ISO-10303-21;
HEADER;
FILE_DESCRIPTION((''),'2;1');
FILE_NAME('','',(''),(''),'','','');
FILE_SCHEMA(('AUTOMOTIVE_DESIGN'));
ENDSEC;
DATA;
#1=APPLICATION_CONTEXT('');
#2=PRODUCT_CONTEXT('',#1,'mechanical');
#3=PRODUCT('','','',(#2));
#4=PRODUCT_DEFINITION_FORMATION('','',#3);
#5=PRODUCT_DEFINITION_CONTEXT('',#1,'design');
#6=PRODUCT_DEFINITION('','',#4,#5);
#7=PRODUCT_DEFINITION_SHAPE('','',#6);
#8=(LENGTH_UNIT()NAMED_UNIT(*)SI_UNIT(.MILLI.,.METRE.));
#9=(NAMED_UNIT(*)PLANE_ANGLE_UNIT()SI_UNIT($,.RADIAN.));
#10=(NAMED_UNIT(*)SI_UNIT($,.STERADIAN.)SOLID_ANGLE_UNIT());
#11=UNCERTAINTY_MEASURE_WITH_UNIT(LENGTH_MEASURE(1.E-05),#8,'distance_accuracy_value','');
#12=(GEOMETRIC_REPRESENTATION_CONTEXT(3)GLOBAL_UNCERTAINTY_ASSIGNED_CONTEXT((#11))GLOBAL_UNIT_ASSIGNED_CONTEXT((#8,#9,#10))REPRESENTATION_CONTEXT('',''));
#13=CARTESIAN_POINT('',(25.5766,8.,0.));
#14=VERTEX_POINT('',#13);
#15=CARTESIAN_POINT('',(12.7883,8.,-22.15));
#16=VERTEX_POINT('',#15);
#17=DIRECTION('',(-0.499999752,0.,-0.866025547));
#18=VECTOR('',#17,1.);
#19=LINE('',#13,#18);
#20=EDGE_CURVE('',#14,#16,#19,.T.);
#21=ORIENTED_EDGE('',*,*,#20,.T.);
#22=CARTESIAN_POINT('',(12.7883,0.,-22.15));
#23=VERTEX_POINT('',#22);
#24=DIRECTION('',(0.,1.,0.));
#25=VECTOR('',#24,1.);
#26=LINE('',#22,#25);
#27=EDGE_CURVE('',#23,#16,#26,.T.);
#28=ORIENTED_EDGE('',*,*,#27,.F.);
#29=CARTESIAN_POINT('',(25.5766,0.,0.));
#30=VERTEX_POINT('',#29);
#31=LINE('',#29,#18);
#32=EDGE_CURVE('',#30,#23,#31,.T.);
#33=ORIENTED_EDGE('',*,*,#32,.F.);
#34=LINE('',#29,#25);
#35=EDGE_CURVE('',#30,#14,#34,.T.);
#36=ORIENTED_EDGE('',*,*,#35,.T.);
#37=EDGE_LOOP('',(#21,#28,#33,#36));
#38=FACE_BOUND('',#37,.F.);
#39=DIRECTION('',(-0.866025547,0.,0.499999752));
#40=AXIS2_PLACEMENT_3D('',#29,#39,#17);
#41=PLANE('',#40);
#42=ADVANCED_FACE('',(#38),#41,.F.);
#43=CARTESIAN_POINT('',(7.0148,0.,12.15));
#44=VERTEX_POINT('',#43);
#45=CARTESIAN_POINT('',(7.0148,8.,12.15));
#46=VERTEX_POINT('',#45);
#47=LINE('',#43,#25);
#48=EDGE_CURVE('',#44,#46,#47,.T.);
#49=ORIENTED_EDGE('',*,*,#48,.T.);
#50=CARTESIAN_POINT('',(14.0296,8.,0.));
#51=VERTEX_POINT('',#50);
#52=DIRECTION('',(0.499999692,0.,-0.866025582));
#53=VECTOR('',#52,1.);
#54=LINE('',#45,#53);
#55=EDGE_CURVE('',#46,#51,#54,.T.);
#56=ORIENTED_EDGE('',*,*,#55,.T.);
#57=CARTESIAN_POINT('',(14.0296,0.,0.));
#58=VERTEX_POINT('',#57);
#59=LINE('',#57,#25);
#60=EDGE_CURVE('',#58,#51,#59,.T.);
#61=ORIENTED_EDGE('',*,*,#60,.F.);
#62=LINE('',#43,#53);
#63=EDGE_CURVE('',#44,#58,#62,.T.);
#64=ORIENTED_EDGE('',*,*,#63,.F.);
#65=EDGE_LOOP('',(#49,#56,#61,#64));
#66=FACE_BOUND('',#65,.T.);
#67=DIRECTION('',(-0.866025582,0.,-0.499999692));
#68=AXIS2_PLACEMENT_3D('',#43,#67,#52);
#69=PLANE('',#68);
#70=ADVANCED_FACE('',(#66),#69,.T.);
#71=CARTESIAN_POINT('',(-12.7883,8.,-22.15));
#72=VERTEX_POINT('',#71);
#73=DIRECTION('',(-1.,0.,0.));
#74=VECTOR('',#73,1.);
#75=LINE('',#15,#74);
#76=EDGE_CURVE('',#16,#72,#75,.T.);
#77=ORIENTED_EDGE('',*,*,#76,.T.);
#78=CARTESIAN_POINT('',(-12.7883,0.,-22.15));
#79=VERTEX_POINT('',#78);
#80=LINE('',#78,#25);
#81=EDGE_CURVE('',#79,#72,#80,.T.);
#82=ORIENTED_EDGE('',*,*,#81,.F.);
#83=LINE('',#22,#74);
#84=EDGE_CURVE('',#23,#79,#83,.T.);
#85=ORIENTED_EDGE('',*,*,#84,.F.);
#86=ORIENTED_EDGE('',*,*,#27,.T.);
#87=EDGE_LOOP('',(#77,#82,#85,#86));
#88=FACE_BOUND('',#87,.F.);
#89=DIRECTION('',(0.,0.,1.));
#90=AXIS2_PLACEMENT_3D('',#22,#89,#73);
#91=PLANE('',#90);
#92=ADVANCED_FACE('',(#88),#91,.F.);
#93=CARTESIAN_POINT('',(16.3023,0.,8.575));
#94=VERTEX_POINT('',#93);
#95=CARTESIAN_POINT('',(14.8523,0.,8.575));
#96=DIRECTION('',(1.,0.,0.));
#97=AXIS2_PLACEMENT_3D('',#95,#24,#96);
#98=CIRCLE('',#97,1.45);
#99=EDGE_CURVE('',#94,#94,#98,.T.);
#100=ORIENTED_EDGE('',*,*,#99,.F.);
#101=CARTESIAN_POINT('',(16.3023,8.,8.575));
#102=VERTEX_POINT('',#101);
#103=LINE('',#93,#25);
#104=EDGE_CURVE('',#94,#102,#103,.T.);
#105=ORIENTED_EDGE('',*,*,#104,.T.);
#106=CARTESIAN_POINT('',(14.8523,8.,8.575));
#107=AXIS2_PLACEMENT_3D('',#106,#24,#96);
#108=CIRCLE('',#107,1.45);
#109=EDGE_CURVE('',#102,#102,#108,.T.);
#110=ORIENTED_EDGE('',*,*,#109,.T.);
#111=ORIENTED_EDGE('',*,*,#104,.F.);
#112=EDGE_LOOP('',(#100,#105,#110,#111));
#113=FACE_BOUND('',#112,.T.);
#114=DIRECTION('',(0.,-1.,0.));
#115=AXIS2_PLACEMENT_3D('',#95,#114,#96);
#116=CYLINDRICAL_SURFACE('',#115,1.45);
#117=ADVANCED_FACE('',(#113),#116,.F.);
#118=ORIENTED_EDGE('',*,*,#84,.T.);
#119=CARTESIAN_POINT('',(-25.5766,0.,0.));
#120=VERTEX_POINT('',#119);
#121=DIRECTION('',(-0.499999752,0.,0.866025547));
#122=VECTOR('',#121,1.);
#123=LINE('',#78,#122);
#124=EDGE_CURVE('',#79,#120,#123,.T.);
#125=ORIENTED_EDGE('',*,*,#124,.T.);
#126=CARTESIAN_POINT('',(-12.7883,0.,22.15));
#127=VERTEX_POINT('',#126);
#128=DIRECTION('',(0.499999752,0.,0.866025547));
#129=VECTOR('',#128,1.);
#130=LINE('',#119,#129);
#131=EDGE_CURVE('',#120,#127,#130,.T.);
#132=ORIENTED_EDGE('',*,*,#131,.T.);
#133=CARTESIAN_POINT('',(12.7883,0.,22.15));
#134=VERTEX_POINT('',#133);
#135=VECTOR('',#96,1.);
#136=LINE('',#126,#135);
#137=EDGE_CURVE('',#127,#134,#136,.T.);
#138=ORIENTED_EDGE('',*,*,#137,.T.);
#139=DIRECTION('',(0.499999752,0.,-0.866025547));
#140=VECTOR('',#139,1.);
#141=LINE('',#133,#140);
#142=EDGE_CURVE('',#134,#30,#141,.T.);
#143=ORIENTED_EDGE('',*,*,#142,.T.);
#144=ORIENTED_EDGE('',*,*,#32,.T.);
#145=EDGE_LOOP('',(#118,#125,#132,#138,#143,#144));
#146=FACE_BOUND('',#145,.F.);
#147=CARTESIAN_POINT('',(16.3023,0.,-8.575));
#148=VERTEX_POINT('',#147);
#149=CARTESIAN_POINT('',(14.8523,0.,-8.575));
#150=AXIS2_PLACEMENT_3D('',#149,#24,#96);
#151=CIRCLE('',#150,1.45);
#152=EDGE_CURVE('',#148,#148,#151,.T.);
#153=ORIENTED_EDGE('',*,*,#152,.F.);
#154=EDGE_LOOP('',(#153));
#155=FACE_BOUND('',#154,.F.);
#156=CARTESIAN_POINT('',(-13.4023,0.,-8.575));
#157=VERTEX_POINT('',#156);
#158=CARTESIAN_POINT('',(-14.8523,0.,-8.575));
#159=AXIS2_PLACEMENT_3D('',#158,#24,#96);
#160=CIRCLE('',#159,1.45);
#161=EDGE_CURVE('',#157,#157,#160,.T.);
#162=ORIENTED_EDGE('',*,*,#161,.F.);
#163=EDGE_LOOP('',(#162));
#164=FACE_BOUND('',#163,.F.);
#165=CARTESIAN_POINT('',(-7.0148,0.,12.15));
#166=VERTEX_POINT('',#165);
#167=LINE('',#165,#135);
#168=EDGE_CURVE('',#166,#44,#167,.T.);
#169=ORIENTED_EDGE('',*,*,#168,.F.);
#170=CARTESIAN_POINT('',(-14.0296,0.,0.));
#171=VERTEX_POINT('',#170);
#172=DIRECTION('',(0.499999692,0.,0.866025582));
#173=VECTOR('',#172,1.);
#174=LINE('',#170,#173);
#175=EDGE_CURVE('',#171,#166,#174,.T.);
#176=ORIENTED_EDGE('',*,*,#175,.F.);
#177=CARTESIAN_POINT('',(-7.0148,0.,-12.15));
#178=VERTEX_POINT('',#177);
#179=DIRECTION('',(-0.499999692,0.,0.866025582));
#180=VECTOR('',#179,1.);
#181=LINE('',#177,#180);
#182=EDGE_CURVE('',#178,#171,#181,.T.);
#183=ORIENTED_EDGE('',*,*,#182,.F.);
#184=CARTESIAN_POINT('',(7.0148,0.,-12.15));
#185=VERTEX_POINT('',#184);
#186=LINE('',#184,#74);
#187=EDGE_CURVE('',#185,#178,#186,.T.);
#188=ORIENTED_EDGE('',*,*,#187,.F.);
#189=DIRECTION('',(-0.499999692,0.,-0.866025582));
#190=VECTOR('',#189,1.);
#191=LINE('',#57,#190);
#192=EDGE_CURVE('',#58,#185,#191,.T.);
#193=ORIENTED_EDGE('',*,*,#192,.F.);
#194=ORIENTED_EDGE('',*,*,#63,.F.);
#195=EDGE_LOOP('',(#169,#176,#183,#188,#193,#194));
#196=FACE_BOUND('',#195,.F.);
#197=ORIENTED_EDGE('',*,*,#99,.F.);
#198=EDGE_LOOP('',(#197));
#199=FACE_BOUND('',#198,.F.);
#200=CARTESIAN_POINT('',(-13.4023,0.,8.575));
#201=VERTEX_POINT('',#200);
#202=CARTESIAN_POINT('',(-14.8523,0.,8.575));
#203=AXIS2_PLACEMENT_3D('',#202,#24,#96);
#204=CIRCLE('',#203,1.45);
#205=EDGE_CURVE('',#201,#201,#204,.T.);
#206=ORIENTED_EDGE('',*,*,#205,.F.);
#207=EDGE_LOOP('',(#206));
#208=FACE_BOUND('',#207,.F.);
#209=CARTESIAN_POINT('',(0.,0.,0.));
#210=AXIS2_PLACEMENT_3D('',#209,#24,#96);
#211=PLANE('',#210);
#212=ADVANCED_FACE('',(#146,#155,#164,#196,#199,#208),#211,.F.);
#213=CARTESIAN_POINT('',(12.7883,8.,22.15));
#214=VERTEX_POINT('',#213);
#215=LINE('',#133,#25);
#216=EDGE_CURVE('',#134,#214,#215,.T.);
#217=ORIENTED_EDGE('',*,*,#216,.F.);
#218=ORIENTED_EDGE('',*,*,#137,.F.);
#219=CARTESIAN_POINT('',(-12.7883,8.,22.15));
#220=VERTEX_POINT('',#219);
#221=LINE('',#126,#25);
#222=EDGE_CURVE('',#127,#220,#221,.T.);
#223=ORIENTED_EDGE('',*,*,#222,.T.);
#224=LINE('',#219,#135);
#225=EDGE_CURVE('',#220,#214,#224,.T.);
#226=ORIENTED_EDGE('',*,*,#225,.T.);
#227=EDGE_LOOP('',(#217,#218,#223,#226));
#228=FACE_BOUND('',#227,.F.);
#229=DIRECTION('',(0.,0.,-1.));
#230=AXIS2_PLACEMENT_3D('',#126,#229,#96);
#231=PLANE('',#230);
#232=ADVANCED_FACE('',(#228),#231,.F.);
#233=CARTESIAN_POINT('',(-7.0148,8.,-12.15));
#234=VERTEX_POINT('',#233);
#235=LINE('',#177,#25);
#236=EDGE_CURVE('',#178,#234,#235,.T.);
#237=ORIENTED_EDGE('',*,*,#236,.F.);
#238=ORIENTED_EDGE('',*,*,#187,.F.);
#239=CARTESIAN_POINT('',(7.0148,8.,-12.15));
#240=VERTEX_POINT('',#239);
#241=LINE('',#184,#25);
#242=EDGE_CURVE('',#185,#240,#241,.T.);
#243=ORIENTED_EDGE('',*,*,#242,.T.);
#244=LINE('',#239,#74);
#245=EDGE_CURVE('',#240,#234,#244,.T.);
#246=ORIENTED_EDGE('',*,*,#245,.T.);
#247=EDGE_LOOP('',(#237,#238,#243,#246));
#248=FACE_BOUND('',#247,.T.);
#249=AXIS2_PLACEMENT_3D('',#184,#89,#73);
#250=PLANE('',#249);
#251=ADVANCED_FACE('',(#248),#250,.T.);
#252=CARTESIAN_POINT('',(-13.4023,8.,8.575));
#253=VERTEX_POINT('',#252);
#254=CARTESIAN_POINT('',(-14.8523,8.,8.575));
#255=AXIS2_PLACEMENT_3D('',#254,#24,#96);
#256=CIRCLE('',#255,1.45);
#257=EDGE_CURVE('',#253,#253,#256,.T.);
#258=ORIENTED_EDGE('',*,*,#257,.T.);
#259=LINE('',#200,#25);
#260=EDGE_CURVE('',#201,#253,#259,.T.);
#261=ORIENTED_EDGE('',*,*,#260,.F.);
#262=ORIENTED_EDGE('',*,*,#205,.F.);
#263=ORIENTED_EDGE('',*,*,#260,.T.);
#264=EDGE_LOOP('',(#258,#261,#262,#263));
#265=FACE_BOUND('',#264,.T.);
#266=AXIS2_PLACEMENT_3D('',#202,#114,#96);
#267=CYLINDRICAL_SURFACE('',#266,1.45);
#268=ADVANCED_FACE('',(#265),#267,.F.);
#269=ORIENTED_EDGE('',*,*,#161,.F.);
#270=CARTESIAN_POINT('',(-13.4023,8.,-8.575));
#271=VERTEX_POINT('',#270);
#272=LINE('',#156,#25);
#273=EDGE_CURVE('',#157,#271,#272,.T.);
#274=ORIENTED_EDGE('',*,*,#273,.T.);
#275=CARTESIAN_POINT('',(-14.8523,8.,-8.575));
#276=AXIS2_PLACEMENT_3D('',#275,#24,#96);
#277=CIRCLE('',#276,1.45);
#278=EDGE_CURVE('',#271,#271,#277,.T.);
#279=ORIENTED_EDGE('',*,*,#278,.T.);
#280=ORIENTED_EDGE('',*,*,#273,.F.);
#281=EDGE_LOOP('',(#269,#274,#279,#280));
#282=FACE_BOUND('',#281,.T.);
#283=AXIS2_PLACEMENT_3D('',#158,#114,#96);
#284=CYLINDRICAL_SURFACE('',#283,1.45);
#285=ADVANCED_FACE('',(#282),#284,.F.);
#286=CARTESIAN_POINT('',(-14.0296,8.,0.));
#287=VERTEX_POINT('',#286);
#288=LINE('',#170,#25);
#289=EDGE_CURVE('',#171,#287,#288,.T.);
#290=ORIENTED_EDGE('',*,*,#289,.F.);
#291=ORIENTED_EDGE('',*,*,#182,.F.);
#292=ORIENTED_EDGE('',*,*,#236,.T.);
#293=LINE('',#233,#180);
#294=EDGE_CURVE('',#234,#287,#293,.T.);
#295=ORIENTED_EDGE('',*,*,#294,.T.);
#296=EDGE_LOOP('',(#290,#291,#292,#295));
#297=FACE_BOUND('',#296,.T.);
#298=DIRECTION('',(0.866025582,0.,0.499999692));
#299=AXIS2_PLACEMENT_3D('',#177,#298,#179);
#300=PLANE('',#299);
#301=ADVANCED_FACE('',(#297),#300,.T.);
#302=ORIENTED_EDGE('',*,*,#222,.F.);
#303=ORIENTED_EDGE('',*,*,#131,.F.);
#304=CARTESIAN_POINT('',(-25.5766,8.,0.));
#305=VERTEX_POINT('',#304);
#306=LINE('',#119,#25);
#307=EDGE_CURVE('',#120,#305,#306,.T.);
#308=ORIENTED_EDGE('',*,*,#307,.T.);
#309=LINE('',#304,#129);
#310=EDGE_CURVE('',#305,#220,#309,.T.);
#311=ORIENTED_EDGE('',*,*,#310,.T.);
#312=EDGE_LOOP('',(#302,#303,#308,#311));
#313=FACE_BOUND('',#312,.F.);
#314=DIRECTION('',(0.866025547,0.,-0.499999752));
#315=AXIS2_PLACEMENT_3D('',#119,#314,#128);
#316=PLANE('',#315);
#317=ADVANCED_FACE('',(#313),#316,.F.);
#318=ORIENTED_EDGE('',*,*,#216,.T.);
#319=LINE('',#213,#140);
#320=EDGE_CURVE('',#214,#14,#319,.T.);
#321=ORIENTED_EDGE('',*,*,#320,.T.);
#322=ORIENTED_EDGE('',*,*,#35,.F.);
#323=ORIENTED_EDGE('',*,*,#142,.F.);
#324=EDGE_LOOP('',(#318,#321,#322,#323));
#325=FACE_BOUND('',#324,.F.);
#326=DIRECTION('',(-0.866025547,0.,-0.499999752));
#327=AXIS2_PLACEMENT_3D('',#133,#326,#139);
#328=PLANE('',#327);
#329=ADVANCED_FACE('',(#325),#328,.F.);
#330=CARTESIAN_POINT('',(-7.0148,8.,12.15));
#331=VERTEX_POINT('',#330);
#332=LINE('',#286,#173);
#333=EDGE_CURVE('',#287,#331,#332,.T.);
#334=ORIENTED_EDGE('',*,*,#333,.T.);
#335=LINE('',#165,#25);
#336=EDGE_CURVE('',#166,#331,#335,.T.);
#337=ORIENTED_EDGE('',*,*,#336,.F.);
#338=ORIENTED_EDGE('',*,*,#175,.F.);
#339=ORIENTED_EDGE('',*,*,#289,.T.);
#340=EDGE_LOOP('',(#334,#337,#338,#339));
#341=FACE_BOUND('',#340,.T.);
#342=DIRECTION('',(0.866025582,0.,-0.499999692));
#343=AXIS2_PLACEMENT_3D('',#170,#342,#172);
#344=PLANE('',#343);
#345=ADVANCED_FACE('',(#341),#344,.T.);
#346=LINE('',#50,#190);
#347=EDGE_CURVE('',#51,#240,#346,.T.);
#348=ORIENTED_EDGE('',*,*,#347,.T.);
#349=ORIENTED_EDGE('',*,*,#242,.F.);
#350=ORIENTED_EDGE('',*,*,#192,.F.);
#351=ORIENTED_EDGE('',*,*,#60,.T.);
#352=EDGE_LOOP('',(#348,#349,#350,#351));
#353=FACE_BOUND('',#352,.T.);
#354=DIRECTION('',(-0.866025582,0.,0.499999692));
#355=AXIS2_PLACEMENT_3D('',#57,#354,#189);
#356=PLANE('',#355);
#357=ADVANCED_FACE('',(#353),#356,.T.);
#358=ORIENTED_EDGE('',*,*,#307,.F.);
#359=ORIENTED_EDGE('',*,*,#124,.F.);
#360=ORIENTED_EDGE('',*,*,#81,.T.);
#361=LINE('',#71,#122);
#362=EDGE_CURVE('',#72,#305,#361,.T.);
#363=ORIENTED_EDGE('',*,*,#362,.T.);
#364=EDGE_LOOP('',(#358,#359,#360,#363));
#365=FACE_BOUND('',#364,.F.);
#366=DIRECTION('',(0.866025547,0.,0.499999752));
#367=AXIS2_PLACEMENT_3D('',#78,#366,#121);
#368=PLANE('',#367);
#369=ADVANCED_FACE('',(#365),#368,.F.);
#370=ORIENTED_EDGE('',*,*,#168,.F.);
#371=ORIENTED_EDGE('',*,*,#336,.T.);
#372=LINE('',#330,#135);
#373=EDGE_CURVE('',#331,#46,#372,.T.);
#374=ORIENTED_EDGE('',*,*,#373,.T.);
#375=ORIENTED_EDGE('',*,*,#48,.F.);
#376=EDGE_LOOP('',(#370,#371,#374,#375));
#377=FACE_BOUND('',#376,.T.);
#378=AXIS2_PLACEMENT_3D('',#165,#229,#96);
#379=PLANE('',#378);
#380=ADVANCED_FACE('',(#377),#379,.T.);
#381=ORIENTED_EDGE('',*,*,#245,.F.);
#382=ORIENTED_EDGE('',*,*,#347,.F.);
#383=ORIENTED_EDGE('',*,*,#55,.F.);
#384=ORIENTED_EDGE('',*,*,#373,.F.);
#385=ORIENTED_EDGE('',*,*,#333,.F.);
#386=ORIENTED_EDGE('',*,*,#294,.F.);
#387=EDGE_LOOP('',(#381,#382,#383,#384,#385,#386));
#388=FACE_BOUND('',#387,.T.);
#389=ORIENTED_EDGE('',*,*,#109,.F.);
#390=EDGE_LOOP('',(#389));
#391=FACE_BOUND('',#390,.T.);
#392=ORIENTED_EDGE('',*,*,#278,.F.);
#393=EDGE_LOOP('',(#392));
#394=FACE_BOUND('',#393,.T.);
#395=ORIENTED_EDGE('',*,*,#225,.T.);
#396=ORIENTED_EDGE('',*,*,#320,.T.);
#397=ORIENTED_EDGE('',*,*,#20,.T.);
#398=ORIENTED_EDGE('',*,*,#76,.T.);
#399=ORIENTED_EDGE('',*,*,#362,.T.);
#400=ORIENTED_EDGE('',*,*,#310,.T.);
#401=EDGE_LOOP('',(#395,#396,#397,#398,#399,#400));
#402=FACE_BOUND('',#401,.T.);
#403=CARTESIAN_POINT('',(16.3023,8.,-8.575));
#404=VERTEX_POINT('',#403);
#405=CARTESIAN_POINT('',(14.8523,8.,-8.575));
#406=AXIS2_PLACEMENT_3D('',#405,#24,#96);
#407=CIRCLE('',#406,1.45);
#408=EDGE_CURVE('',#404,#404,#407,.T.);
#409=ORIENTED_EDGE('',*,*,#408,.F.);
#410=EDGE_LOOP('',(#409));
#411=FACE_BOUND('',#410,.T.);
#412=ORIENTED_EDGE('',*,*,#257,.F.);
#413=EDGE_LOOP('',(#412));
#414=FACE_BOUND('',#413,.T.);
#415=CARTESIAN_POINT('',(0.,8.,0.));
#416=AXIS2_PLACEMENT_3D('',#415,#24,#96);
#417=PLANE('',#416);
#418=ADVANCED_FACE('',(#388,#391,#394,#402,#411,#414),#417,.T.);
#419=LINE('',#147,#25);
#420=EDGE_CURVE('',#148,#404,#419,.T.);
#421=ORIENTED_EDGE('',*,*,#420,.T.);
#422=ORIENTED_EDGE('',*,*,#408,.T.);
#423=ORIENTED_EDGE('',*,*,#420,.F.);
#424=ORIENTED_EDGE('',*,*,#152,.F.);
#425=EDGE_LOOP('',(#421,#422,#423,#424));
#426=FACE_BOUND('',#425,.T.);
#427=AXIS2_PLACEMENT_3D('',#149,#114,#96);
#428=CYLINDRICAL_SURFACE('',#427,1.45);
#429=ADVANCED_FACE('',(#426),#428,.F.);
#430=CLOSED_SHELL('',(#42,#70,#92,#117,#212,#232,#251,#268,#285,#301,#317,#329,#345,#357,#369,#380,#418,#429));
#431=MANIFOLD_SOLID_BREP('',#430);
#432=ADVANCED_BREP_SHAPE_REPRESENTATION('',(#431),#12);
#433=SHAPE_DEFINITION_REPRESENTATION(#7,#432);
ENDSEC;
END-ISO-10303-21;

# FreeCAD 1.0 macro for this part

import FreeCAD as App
import Part
import Sketcher
Q = App.Units.Quantity

doc = App.newDocument("Part")
body = doc.addObject("PartDesign::Body", "Body")

sketch1 = body.newObject("Sketcher::SketchObject", "Sketch")
sketch1.AttachmentSupport = (doc.getObject("XZ_Plane"), [""])
sketch1.MapMode = "FlatFace"
sketch1.addGeometry(Part.LineSegment(App.Vector(12.8, -22.1, 0), App.Vector(-12.8, -22.1, 0)), False)
sketch1.addGeometry(Part.LineSegment(App.Vector(-12.8, -22.1, 0), App.Vector(-25.6, 0, 0)), False)
sketch1.addGeometry(Part.LineSegment(App.Vector(-25.6, 0, 0), App.Vector(-12.8, 22.1, 0)), False)
sketch1.addGeometry(Part.LineSegment(App.Vector(-12.8, 22.1, 0), App.Vector(12.8, 22.1, 0)), False)
sketch1.addGeometry(Part.LineSegment(App.Vector(12.8, 22.1, 0), App.Vector(25.6, 0, 0)), False)
sketch1.addGeometry(Part.LineSegment(App.Vector(25.6, 0, 0), App.Vector(12.8, -22.1, 0)), False)
sketch1.addGeometry(Part.Circle(App.Vector(-14.9, 8.6, 0), App.Vector(0, 0, 1), 1.4), False)
sketch1.addGeometry(Part.Circle(App.Vector(14.9, 8.6, 0), App.Vector(0, 0, 1), 1.4), False)
sketch1.addGeometry(Part.Circle(App.Vector(-14.9, -8.6, 0), App.Vector(0, 0, 1), 1.4), False)
sketch1.addGeometry(Part.LineSegment(App.Vector(-7, -12.2, 0), App.Vector(7, -12.2, 0)), False)
sketch1.addGeometry(Part.LineSegment(App.Vector(7, -12.2, 0), App.Vector(14, 0, 0)), False)
sketch1.addGeometry(Part.LineSegment(App.Vector(14, 0, 0), App.Vector(7, 12.2, 0)), False)
sketch1.addGeometry(Part.LineSegment(App.Vector(7, 12.2, 0), App.Vector(-7, 12.2, 0)), False)
sketch1.addGeometry(Part.LineSegment(App.Vector(-7, 12.2, 0), App.Vector(-14, 0, 0)), False)
sketch1.addGeometry(Part.LineSegment(App.Vector(-14, 0, 0), App.Vector(-7, -12.2, 0)), False)
sketch1.addGeometry(Part.Circle(App.Vector(14.9, -8.6, 0), App.Vector(0, 0, 1), 1.4), False)
sketch1.addConstraint(Sketcher.Constraint("Coincident", 0, 2, 1, 1))
sketch1.addConstraint(Sketcher.Constraint("Coincident", 1, 2, 2, 1))
sketch1.addConstraint(Sketcher.Constraint("Coincident", 2, 2, 3, 1))
sketch1.addConstraint(Sketcher.Constraint("Coincident", 3, 2, 4, 1))
sketch1.addConstraint(Sketcher.Constraint("Coincident", 4, 2, 5, 1))
sketch1.addConstraint(Sketcher.Constraint("Coincident", 5, 2, 0, 1))
sketch1.addConstraint(Sketcher.Constraint("Coincident", 9, 2, 10, 1))
sketch1.addConstraint(Sketcher.Constraint("Coincident", 10, 2, 11, 1))
sketch1.addConstraint(Sketcher.Constraint("Coincident", 11, 2, 12, 1))
sketch1.addConstraint(Sketcher.Constraint("Coincident", 12, 2, 13, 1))
sketch1.addConstraint(Sketcher.Constraint("Coincident", 13, 2, 14, 1))
sketch1.addConstraint(Sketcher.Constraint("Coincident", 14, 2, 9, 1))
sketch1.addConstraint(Sketcher.Constraint("Horizontal", 0))
sketch1.addConstraint(Sketcher.Constraint("Horizontal", 3))
sketch1.addConstraint(Sketcher.Constraint("Horizontal", 9))
sketch1.addConstraint(Sketcher.Constraint("Horizontal", 12))
sketch1.addConstraint(Sketcher.Constraint("Equal", 6, 7))
sketch1.addConstraint(Sketcher.Constraint("Equal", 7, 8))
sketch1.addConstraint(Sketcher.Constraint("Equal", 8, 15))
sketch1.addConstraint(Sketcher.Constraint("Symmetric", 7, 3, 8, 3, -1, 1))
sketch1.addConstraint(Sketcher.Constraint("Symmetric", 6, 3, 15, 3, -1, 1))
sketch1.addConstraint(Sketcher.Constraint("Symmetric", 0, 2, 3, 2, -1, 1))
sketch1.addConstraint(Sketcher.Constraint("Symmetric", 1, 2, 4, 2, -1, 1))
sketch1.addConstraint(Sketcher.Constraint("Symmetric", 9, 2, 12, 2, -1, 1))
sketch1.addConstraint(Sketcher.Constraint("Symmetric", 10, 2, 13, 2, -1, 1))
sketch1.addConstraint(Sketcher.Constraint("Symmetric", 6, 3, 7, 3, -2))
sketch1.addConstraint(Sketcher.Constraint("PointOnObject", 1, 2, -1))
sketch1.addConstraint(Sketcher.Constraint("PointOnObject", 10, 2, -1))
sketch1.addConstraint(Sketcher.Constraint("Parallel", 2, 5))
sketch1.addConstraint(Sketcher.Constraint("Parallel", 5, 10))
sketch1.addConstraint(Sketcher.Constraint("Parallel", 4, 11))
sketch1.addConstraint(Sketcher.Constraint("Parallel", 11, 14))
sketch1.addConstraint(Sketcher.Constraint("Vertical", 0, 2, 2, 2))
sketch1.addConstraint(Sketcher.Constraint("Diameter", 6, 2.9))
sketch1.addConstraint(Sketcher.Constraint("DistanceY", 5, 2, 9, 2, 10.0))
sketch1.addConstraint(Sketcher.Constraint("DistanceY", 9, 2, -1, 1, 12.15))
sketch1.addConstraint(Sketcher.Constraint("Angle", 1, Q("120 deg")))
sketch1.addConstraint(Sketcher.Constraint("DistanceY", 8, 3, 6, 3, 17.15))
sketch1.addConstraint(Sketcher.Constraint("DistanceX", 0, 2, 0, 1, 25.5766))
sketch1.addConstraint(Sketcher.Constraint("DistanceX", 9, 1, 9, 2, 14.0296))
sketch1.addConstraint(Sketcher.Constraint("DistanceX", 8, 3, 0, 2, 2.064))
pad1 = body.newObject("PartDesign::Pad", "Pad")
pad1.Profile = sketch1
pad1.Length = 8
pad1.Reversed = True

doc.recompute()
